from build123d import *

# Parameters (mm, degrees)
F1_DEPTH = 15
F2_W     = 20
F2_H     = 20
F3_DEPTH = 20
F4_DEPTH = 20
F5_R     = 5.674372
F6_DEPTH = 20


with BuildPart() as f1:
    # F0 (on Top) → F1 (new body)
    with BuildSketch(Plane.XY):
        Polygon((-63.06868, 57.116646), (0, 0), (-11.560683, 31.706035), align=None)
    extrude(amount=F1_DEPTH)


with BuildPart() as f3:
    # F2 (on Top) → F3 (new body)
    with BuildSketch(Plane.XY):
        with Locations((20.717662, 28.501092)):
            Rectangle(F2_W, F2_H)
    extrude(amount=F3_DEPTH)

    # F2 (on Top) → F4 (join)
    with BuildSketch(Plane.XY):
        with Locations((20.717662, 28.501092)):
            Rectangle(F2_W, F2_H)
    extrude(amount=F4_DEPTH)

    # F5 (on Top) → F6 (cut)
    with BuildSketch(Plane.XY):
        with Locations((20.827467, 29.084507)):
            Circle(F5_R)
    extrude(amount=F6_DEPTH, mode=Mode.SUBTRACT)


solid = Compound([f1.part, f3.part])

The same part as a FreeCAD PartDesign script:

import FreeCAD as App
import Part
import Sketcher

V = App.Vector


def add_polygon(sketch, points):
    """Adds a closed chain of lines whose ends are joined by coincident constraints."""
    first, n = sketch.GeometryCount, len(points)
    for a, b in zip(points, points[1:] + points[:1]):
        sketch.addGeometry(Part.LineSegment(App.Vector(*a, 0), App.Vector(*b, 0)), False)
    for i in range(n):
        sketch.addConstraint(Sketcher.Constraint("Coincident", first + i, 2, first + (i + 1) % n, 1))

doc = App.newDocument("Part")
body = doc.addObject("PartDesign::Body", "Body")

sketch1 = body.newObject("Sketcher::SketchObject", "Sketch")
sketch1.AttachmentSupport = (doc.getObject("XY_Plane"), [""])
sketch1.MapMode = "FlatFace"
add_polygon(sketch1, [(-63, 57), (0, 0), (-12, 32)])
sketch1.addConstraint(Sketcher.Constraint("Coincident", 0, 2, -1, 1))
sketch1.addConstraint(Sketcher.Constraint("Distance", 0, 85.088011))
sketch1.addConstraint(Sketcher.Constraint("Distance", 1, 33.747919))
sketch1.addConstraint(Sketcher.Constraint("DistanceX", 2, 2, -1, 1, 63.06868))
sketch1.addConstraint(Sketcher.Constraint("DistanceY", 1, 2, 2, 2, 25.410611))
pad1 = body.newObject("PartDesign::Pad", "Pad")
pad1.Profile = sketch1
pad1.Length = 15
body2 = doc.addObject("PartDesign::Body", "Body001")

sketch2 = body2.newObject("Sketcher::SketchObject", "Sketch001")
sketch2.AttachmentSupport = (doc.getObject("XY_Plane001"), [""])
sketch2.MapMode = "FlatFace"
add_polygon(sketch2, [(11, 39), (11, 19), (31, 19), (31, 39)])
sketch2.addConstraint(Sketcher.Constraint("Vertical", 0))
sketch2.addConstraint(Sketcher.Constraint("Horizontal", 1))
sketch2.addConstraint(Sketcher.Constraint("Vertical", 2))
sketch2.addConstraint(Sketcher.Constraint("Horizontal", 3))
sketch2.addConstraint(Sketcher.Constraint("Equal", 3, 0))
sketch2.addConstraint(Sketcher.Constraint("DistanceX", 1, 1, 1, 2, 20.0))
sketch2.addConstraint(Sketcher.Constraint("DistanceY", -1, 1, 0, 2, 18.501092))
sketch2.addConstraint(Sketcher.Constraint("DistanceX", -1, 1, 0, 2, 10.717662))
pad2 = body2.newObject("PartDesign::Pad", "Pad001")
pad2.Profile = sketch2
pad2.Length = 20

sketch3 = body2.newObject("Sketcher::SketchObject", "Sketch002")
sketch3.AttachmentSupport = (doc.getObject("XY_Plane001"), [""])
sketch3.MapMode = "FlatFace"
add_polygon(sketch3, [(11, 39), (11, 19), (31, 19), (31, 39)])
sketch3.addConstraint(Sketcher.Constraint("Vertical", 0))
sketch3.addConstraint(Sketcher.Constraint("Horizontal", 1))
sketch3.addConstraint(Sketcher.Constraint("Vertical", 2))
sketch3.addConstraint(Sketcher.Constraint("Horizontal", 3))
sketch3.addConstraint(Sketcher.Constraint("Equal", 3, 0))
sketch3.addConstraint(Sketcher.Constraint("DistanceX", 1, 1, 1, 2, 20.0))
sketch3.addConstraint(Sketcher.Constraint("DistanceY", -1, 1, 0, 2, 18.501092))
sketch3.addConstraint(Sketcher.Constraint("DistanceX", -1, 1, 0, 2, 10.717662))
pad3 = body2.newObject("PartDesign::Pad", "Pad002")
pad3.Profile = sketch3
pad3.Length = 20

sketch4 = body2.newObject("Sketcher::SketchObject", "Sketch003")
sketch4.AttachmentSupport = (doc.getObject("XY_Plane001"), [""])
sketch4.MapMode = "FlatFace"
sketch4.addGeometry(Part.Circle(V(21, 29, 0), V(0, 0, 1), 6), False)
sketch4.addConstraint(Sketcher.Constraint("Diameter", 0, 11.348744))
sketch4.addConstraint(Sketcher.Constraint("DistanceX", -1, 1, 0, 3, 20.827467))
sketch4.addConstraint(Sketcher.Constraint("DistanceY", -1, 1, 0, 3, 29.084507))
pocket1 = body2.newObject("PartDesign::Pocket", "Pocket")
pocket1.Profile = sketch4
pocket1.Length = 20
pocket1.Reversed = True

doc.recompute()
